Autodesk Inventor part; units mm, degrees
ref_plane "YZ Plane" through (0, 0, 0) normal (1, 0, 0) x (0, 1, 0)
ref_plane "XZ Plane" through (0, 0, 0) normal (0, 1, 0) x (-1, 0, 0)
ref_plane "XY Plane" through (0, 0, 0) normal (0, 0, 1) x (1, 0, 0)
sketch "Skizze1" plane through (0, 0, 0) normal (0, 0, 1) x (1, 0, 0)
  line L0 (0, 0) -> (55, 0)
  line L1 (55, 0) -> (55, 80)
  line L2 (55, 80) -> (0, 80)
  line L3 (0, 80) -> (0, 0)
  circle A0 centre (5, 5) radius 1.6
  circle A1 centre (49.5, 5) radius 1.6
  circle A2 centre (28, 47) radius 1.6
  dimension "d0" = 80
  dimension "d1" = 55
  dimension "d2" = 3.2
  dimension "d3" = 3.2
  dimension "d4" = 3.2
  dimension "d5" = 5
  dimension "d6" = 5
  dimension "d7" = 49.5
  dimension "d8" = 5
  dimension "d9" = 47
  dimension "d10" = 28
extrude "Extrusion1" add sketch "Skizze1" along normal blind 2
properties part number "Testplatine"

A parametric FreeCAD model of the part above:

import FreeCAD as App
import Part
import Sketcher

V = App.Vector

doc = App.newDocument("Part")
params = doc.addObject("Spreadsheet::Sheet", "Params")
for row, (alias, value) in enumerate([
    ("sketch1_diameter", "3.2 mm"),
    ("sketch1_width", "55 mm"),
    ("sketch1_height", "80 mm"),
    ("pad1_length", "2 mm"),
], start=1):
    params.set(f"A{row}", alias)
    params.set(f"B{row}", "=" + value)
    params.setAlias(f"B{row}", alias)

body = doc.addObject("PartDesign::Body", "Body")

# Sketch on XY plane
sketch1 = body.newObject("Sketcher::SketchObject", "Sketch")
sketch1.AttachmentSupport = (doc.getObject("XY_Plane"), [""])
sketch1.MapMode = "FlatFace"
sketch1.addGeometry([
    Part.LineSegment(V(0, 80, 0), V(0, 0, 0)),  # 0
    Part.LineSegment(V(0, 0, 0), V(55, 0, 0)),  # 1
    Part.LineSegment(V(55, 0, 0), V(55, 80, 0)),  # 2
    Part.LineSegment(V(55, 80, 0), V(0, 80, 0)),  # 3
    Part.Circle(V(5, 5, 0), V(0, 0, 1), 1.6),  # 4
    Part.Circle(V(49.5, 5, 0), V(0, 0, 1), 1.6),  # 5
    Part.Circle(V(28, 47, 0), V(0, 0, 1), 1.6),  # 6
], False)
sketch1.addConstraint([
    Sketcher.Constraint("Coincident", 0, 2, 1, 1),
    Sketcher.Constraint("Coincident", 1, 2, 2, 1),
    Sketcher.Constraint("Coincident", 2, 2, 3, 1),
    Sketcher.Constraint("Coincident", 3, 2, 0, 1),
    Sketcher.Constraint("Vertical", 0),
    Sketcher.Constraint("Horizontal", 1),
    Sketcher.Constraint("Vertical", 2),
    Sketcher.Constraint("Horizontal", 3),
    Sketcher.Constraint("Coincident", 0, 2, -1, 1),
    Sketcher.Constraint("Equal", 4, 5),
    Sketcher.Constraint("Equal", 5, 6),
    Sketcher.Constraint("Horizontal", 4, 3, 5, 3),
    Sketcher.Constraint("Diameter", 4, 3.2),
    Sketcher.Constraint("DistanceX", 1, 1, 1, 2, 55.0),
    Sketcher.Constraint("DistanceY", 0, 2, 0, 1, 80.0),
    Sketcher.Constraint("DistanceX", -1, 1, 4, 3, 5.0),
    Sketcher.Constraint("DistanceY", -1, 1, 4, 3, 5.0),
    Sketcher.Constraint("DistanceX", -1, 1, 6, 3, 28.0),
    Sketcher.Constraint("DistanceY", -1, 1, 6, 3, 47.0),
    Sketcher.Constraint("DistanceX", -1, 1, 5, 3, 49.5),
])
sketch1.setExpression("Constraints[12]", "Params.sketch1_diameter")
sketch1.setExpression("Constraints[13]", "Params.sketch1_width")
sketch1.setExpression("Constraints[14]", "Params.sketch1_height")
pad1 = body.newObject("PartDesign::Pad", "Pad")
pad1.Profile = sketch1
pad1.setExpression("Length", "Params.pad1_length")

doc.recompute()
